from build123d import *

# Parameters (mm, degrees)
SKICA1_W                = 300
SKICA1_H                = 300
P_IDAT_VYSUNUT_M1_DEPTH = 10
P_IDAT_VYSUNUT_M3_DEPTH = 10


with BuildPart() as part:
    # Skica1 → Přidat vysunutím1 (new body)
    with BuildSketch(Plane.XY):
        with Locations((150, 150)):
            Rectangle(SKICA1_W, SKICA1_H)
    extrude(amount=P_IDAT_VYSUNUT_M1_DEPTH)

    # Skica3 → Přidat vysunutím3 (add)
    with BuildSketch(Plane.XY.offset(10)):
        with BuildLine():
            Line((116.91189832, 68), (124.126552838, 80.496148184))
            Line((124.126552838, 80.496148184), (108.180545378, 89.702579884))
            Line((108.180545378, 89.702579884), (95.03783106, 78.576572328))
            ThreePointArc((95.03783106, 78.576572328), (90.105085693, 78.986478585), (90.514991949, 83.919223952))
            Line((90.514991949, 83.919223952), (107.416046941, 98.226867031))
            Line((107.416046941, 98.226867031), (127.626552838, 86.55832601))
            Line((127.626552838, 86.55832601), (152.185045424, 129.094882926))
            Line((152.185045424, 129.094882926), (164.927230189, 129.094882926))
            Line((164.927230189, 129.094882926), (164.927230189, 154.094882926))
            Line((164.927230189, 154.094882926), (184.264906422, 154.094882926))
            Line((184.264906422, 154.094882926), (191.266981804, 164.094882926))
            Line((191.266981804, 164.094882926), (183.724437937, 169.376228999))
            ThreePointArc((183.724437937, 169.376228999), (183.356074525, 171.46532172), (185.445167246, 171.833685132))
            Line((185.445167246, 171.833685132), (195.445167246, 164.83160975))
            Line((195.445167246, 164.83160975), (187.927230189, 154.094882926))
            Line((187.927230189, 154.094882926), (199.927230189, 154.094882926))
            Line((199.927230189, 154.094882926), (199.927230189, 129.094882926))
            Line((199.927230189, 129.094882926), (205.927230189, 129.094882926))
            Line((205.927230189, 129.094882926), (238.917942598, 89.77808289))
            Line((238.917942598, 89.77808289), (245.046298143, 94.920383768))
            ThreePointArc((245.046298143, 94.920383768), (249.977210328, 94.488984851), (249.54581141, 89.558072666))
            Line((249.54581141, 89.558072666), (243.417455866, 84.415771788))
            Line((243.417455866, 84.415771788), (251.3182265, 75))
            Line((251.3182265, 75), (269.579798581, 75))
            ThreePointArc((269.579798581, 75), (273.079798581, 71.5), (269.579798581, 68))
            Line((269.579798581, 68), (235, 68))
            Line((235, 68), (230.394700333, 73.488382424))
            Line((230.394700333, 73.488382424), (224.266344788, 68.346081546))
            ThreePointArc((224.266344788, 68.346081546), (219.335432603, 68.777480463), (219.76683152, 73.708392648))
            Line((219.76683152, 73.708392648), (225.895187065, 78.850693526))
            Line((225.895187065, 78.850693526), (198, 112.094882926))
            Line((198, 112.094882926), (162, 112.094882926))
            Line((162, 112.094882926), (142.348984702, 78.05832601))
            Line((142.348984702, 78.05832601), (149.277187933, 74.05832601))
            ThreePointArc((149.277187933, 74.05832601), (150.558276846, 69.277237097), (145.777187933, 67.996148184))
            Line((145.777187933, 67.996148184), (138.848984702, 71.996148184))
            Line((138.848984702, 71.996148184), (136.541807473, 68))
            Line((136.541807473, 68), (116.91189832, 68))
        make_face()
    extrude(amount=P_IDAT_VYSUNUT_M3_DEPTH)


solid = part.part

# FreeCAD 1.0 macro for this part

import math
import FreeCAD as App
import Part
import Sketcher

V = App.Vector
Q = App.Units.Quantity


def add_polygon(sketch, points):
    """Adds a closed chain of lines whose ends are joined by coincident constraints."""
    first, n = sketch.GeometryCount, len(points)
    for a, b in zip(points, points[1:] + points[:1]):
        sketch.addGeometry(Part.LineSegment(App.Vector(*a, 0), App.Vector(*b, 0)), False)
    for i in range(n):
        sketch.addConstraint(Sketcher.Constraint("Coincident", first + i, 2, first + (i + 1) % n, 1))

doc = App.newDocument("Part")
body = doc.addObject("PartDesign::Body", "Body")

# Sketch on XY plane
sketch1 = body.newObject("Sketcher::SketchObject", "Sketch")
sketch1.AttachmentSupport = (doc.getObject("XY_Plane"), [""])
sketch1.MapMode = "FlatFace"
add_polygon(sketch1, [(0, 300), (0, 0), (300, 0), (300, 300)])  # lines 0-3
sketch1.addConstraint([
    Sketcher.Constraint("Vertical", 0),
    Sketcher.Constraint("Horizontal", 1),
    Sketcher.Constraint("Vertical", 2),
    Sketcher.Constraint("Horizontal", 3),
    Sketcher.Constraint("Coincident", 0, 2, -1, 1),
    Sketcher.Constraint("Equal", 3, 0),
    Sketcher.Constraint("DistanceX", 1, 1, 1, 2, 300.0),
])
pad1 = body.newObject("PartDesign::Pad", "Pad")
pad1.Profile = sketch1
pad1.Length = 10

# Sketch on XY plane
sketch2 = body.newObject("Sketcher::SketchObject", "Sketch001")
sketch2.AttachmentSupport = (doc.getObject("XY_Plane"), [""])
sketch2.MapMode = "FlatFace"
sketch2.AttachmentOffset = App.Placement(V(0, 0, 10), App.Rotation())
sketch2.addGeometry([
    Part.LineSegment(V(124.126553, 80.496148, 0), V(116.911898, 68, 0)),  # 0
    Part.LineSegment(V(116.911898, 68, 0), V(136.541807, 68, 0)),  # 1
    Part.LineSegment(V(136.541807, 68, 0), V(138.848985, 71.996148, 0)),  # 2
    Part.LineSegment(V(138.848985, 71.996148, 0), V(145.777188, 67.996148, 0)),  # 3
    Part.ArcOfCircle(Part.Circle(V(147.527188, 71.027237, 0), V(0, 0, 1), 3.5), math.radians(-120), math.radians(60)),  # 4
    Part.LineSegment(V(149.277188, 74.058326, 0), V(142.348985, 78.058326, 0)),  # 5
    Part.LineSegment(V(142.348985, 78.058326, 0), V(162, 112.094883, 0)),  # 6
    Part.LineSegment(V(162, 112.094883, 0), V(198, 112.094883, 0)),  # 7
    Part.LineSegment(V(198, 112.094883, 0), V(225.895187, 78.850694, 0)),  # 8
    Part.LineSegment(V(225.895187, 78.850694, 0), V(219.766832, 73.708393, 0)),  # 9
    Part.ArcOfCircle(Part.Circle(V(222.016588, 71.027237, 0), V(0, 0, 1), 3.5), math.radians(130), math.radians(310)),  # 10
    Part.LineSegment(V(224.266345, 68.346082, 0), V(230.3947, 73.488382, 0)),  # 11
    Part.LineSegment(V(230.3947, 73.488382, 0), V(235, 68, 0)),  # 12
    Part.LineSegment(V(235, 68, 0), V(269.579799, 68, 0)),  # 13
    Part.ArcOfCircle(Part.Circle(V(269.579799, 71.5, 0), V(0, 0, 1), 3.5), math.radians(-90), math.radians(90)),  # 14
    Part.LineSegment(V(269.579799, 75, 0), V(251.318227, 75, 0)),  # 15
    Part.LineSegment(V(251.318227, 75, 0), V(243.417456, 84.415772, 0)),  # 16
    Part.LineSegment(V(243.417456, 84.415772, 0), V(249.545811, 89.558073, 0)),  # 17
    Part.ArcOfCircle(Part.Circle(V(247.296055, 92.239228, 0), V(0, 0, 1), 3.5), math.radians(-50), math.radians(130)),  # 18
    Part.LineSegment(V(245.046298, 94.920384, 0), V(238.917943, 89.778083, 0)),  # 19
    Part.LineSegment(V(238.917943, 89.778083, 0), V(205.92723, 129.094883, 0)),  # 20
    Part.LineSegment(V(205.92723, 129.094883, 0), V(199.92723, 129.094883, 0)),  # 21
    Part.LineSegment(V(199.92723, 129.094883, 0), V(199.92723, 154.094883, 0)),  # 22
    Part.LineSegment(V(199.92723, 154.094883, 0), V(187.92723, 154.094883, 0)),  # 23
    Part.LineSegment(V(187.92723, 154.094883, 0), V(195.445167, 164.83161, 0)),  # 24
    Part.LineSegment(V(195.445167, 164.83161, 0), V(185.445167, 171.833685, 0)),  # 25
    Part.ArcOfCircle(Part.Circle(V(184.584803, 170.604957, 0), V(0, 0, 1), 1.5), math.radians(55), math.radians(235)),  # 26
    Part.LineSegment(V(183.724438, 169.376229, 0), V(191.266982, 164.094883, 0)),  # 27
    Part.LineSegment(V(191.266982, 164.094883, 0), V(184.264906, 154.094883, 0)),  # 28
    Part.LineSegment(V(184.264906, 154.094883, 0), V(164.92723, 154.094883, 0)),  # 29
    Part.LineSegment(V(164.92723, 154.094883, 0), V(164.92723, 129.094883, 0)),  # 30
    Part.LineSegment(V(164.92723, 129.094883, 0), V(152.185045, 129.094883, 0)),  # 31
    Part.LineSegment(V(152.185045, 129.094883, 0), V(127.626553, 86.558326, 0)),  # 32
    Part.LineSegment(V(127.626553, 86.558326, 0), V(107.416047, 98.226867, 0)),  # 33
    Part.LineSegment(V(107.416047, 98.226867, 0), V(90.514992, 83.919224, 0)),  # 34
    Part.ArcOfCircle(Part.Circle(V(92.776412, 81.247898, 0), V(0, 0, 1), 3.5), math.radians(130.249692), math.radians(310.249692)),  # 35
    Part.LineSegment(V(95.037831, 78.576572, 0), V(108.180545, 89.70258, 0)),  # 36
    Part.LineSegment(V(108.180545, 89.70258, 0), V(124.126553, 80.496148, 0)),  # 37
], False)
sketch2.addConstraint([
    Sketcher.Constraint("Coincident", 0, 2, 1, 1),
    Sketcher.Constraint("Coincident", 1, 2, 2, 1),
    Sketcher.Constraint("Coincident", 2, 2, 3, 1),
    Sketcher.Constraint("Tangent", 3, 2, 4, 1),
    Sketcher.Constraint("Tangent", 4, 2, 5, 1),
    Sketcher.Constraint("Coincident", 5, 2, 6, 1),
    Sketcher.Constraint("Coincident", 6, 2, 7, 1),
    Sketcher.Constraint("Coincident", 7, 2, 8, 1),
    Sketcher.Constraint("Coincident", 8, 2, 9, 1),
    Sketcher.Constraint("Tangent", 9, 2, 10, 1),
    Sketcher.Constraint("Tangent", 10, 2, 11, 1),
    Sketcher.Constraint("Coincident", 11, 2, 12, 1),
    Sketcher.Constraint("Coincident", 12, 2, 13, 1),
    Sketcher.Constraint("Tangent", 13, 2, 14, 1),
    Sketcher.Constraint("Tangent", 14, 2, 15, 1),
    Sketcher.Constraint("Coincident", 15, 2, 16, 1),
    Sketcher.Constraint("Coincident", 16, 2, 17, 1),
    Sketcher.Constraint("Tangent", 17, 2, 18, 1),
    Sketcher.Constraint("Tangent", 18, 2, 19, 1),
    Sketcher.Constraint("Coincident", 19, 2, 20, 1),
    Sketcher.Constraint("Coincident", 20, 2, 21, 1),
    Sketcher.Constraint("Coincident", 21, 2, 22, 1),
    Sketcher.Constraint("Coincident", 22, 2, 23, 1),
    Sketcher.Constraint("Coincident", 23, 2, 24, 1),
    Sketcher.Constraint("Coincident", 24, 2, 25, 1),
    Sketcher.Constraint("Tangent", 25, 2, 26, 1),
    Sketcher.Constraint("Tangent", 26, 2, 27, 1),
    Sketcher.Constraint("Coincident", 27, 2, 28, 1),
    Sketcher.Constraint("Coincident", 28, 2, 29, 1),
    Sketcher.Constraint("Coincident", 29, 2, 30, 1),
    Sketcher.Constraint("Coincident", 30, 2, 31, 1),
    Sketcher.Constraint("Coincident", 31, 2, 32, 1),
    Sketcher.Constraint("Coincident", 32, 2, 33, 1),
    Sketcher.Constraint("Coincident", 33, 2, 34, 1),
    Sketcher.Constraint("Tangent", 34, 2, 35, 1),
    Sketcher.Constraint("Tangent", 35, 2, 36, 1),
    Sketcher.Constraint("Coincident", 36, 2, 37, 1),
    Sketcher.Constraint("Coincident", 37, 2, 0, 1),
    Sketcher.Constraint("Horizontal", 1),
    Sketcher.Constraint("Horizontal", 7),
    Sketcher.Constraint("Horizontal", 13),
    Sketcher.Constraint("Horizontal", 15),
    Sketcher.Constraint("Horizontal", 21),
    Sketcher.Constraint("Vertical", 22),
    Sketcher.Constraint("Horizontal", 23),
    Sketcher.Constraint("Horizontal", 29),
    Sketcher.Constraint("Vertical", 30),
    Sketcher.Constraint("Horizontal", 31),
    Sketcher.Constraint("Equal", 4, 10),
    Sketcher.Constraint("Equal", 10, 14),
    Sketcher.Constraint("Equal", 14, 18),
    Sketcher.Constraint("Equal", 18, 35),
    Sketcher.Constraint("Parallel", 0, 2),
    Sketcher.Constraint("Perpendicular", 2, 3),
    Sketcher.Constraint("Parallel", 3, 5),
    Sketcher.Constraint("Perpendicular", 5, 6),
    Sketcher.Constraint("Perpendicular", 8, 9),
    Sketcher.Constraint("Parallel", 9, 11),
    Sketcher.Constraint("Perpendicular", 11, 12),
    Sketcher.Constraint("Parallel", 12, 16),
    Sketcher.Constraint("Perpendicular", 16, 17),
    Sketcher.Constraint("Parallel", 17, 19),
    Sketcher.Constraint("Perpendicular", 19, 20),
    Sketcher.Constraint("Perpendicular", 24, 25),
    Sketcher.Constraint("Parallel", 25, 27),
    Sketcher.Constraint("Perpendicular", 27, 28),
    Sketcher.Constraint("Parallel", 6, 32),
    Sketcher.Constraint("Perpendicular", 32, 33),
    Sketcher.Constraint("Parallel", 34, 36),
    Sketcher.Constraint("Parallel", 33, 37),
    Sketcher.Constraint("Horizontal", 4, 3, 10, 3),
    Sketcher.Constraint("Horizontal", 1, 2, 12, 2),
    Sketcher.Constraint("Horizontal", 23, 2, 28, 2),
    Sketcher.Constraint("Horizontal", 21, 2, 30, 2),
    Sketcher.Constraint("Equal", 3, 5),
    Sketcher.Constraint("Equal", 5, 9),
    Sketcher.Constraint("Equal", 9, 11),
    Sketcher.Constraint("Equal", 11, 17),
    Sketcher.Constraint("Equal", 17, 19),
    Sketcher.Constraint("Equal", 25, 28),
    Sketcher.Constraint("Radius", 4, 3.5),
    Sketcher.Constraint("Radius", 26, 1.5),
    Sketcher.Constraint("DistanceX", 7, 1, 7, 2, 36.0),
    Sketcher.Constraint("DistanceX", 21, 2, 21, 1, 6.0),
    Sketcher.Constraint("DistanceX", 23, 2, 23, 1, 12.0),
    Sketcher.Constraint("DistanceY", 22, 1, 22, 2, 25.0),
    Sketcher.Constraint("Angle", 0, Q("-120 deg")),
    Sketcher.Constraint("Angle", 8, Q("-50 deg")),
    Sketcher.Constraint("Angle", 24, Q("55 deg")),
    Sketcher.Constraint("Distance", 3, 8.0),
    Sketcher.Constraint("DistanceY", -1, 1, 0, 2, 68.0),
    Sketcher.Constraint("DistanceX", -1, 1, 6, 2, 162.0),
    Sketcher.Constraint("DistanceX", -1, 1, 12, 2, 235.0),
    Sketcher.Constraint("DistanceY", 7, 2, 20, 2, 17.0),
    Sketcher.Constraint("DistanceX", 25, 2, 24, 2, 10.0),
    Sketcher.Constraint("DistanceX", 29, 2, 23, 2, 23.0),
    Sketcher.Constraint("DistanceY", 5, 2, 32, 2, 8.5),
    Sketcher.Constraint("DistanceX", 37, 2, 32, 2, 3.5),
    Sketcher.Constraint("DistanceY", 2, 2, 37, 2, 8.5),
    Sketcher.Constraint("DistanceX", 13, 1, 13, 2, 34.579799),
    Sketcher.Constraint("DistanceX", 1, 1, 1, 2, 19.629909),
    Sketcher.Constraint("DistanceY", -1, 1, 35, 3, 81.247898),
    Sketcher.Constraint("DistanceX", -1, 1, 11, 2, 230.3947),
    Sketcher.Constraint("DistanceX", -1, 1, 18, 2, 245.046298),
    Sketcher.Constraint("DistanceY", 19, 2, 20, 2, 39.3168),
    Sketcher.Constraint("DistanceX", 33, 2, 36, 2, 0.764498),
    Sketcher.Constraint("DistanceX", 29, 2, 29, 1, 19.337676),
    Sketcher.Constraint("DistanceX", -1, 1, 35, 3, 92.776412),
])
pad2 = body.newObject("PartDesign::Pad", "Pad001")
pad2.Profile = sketch2
pad2.Length = 10

doc.recompute()
